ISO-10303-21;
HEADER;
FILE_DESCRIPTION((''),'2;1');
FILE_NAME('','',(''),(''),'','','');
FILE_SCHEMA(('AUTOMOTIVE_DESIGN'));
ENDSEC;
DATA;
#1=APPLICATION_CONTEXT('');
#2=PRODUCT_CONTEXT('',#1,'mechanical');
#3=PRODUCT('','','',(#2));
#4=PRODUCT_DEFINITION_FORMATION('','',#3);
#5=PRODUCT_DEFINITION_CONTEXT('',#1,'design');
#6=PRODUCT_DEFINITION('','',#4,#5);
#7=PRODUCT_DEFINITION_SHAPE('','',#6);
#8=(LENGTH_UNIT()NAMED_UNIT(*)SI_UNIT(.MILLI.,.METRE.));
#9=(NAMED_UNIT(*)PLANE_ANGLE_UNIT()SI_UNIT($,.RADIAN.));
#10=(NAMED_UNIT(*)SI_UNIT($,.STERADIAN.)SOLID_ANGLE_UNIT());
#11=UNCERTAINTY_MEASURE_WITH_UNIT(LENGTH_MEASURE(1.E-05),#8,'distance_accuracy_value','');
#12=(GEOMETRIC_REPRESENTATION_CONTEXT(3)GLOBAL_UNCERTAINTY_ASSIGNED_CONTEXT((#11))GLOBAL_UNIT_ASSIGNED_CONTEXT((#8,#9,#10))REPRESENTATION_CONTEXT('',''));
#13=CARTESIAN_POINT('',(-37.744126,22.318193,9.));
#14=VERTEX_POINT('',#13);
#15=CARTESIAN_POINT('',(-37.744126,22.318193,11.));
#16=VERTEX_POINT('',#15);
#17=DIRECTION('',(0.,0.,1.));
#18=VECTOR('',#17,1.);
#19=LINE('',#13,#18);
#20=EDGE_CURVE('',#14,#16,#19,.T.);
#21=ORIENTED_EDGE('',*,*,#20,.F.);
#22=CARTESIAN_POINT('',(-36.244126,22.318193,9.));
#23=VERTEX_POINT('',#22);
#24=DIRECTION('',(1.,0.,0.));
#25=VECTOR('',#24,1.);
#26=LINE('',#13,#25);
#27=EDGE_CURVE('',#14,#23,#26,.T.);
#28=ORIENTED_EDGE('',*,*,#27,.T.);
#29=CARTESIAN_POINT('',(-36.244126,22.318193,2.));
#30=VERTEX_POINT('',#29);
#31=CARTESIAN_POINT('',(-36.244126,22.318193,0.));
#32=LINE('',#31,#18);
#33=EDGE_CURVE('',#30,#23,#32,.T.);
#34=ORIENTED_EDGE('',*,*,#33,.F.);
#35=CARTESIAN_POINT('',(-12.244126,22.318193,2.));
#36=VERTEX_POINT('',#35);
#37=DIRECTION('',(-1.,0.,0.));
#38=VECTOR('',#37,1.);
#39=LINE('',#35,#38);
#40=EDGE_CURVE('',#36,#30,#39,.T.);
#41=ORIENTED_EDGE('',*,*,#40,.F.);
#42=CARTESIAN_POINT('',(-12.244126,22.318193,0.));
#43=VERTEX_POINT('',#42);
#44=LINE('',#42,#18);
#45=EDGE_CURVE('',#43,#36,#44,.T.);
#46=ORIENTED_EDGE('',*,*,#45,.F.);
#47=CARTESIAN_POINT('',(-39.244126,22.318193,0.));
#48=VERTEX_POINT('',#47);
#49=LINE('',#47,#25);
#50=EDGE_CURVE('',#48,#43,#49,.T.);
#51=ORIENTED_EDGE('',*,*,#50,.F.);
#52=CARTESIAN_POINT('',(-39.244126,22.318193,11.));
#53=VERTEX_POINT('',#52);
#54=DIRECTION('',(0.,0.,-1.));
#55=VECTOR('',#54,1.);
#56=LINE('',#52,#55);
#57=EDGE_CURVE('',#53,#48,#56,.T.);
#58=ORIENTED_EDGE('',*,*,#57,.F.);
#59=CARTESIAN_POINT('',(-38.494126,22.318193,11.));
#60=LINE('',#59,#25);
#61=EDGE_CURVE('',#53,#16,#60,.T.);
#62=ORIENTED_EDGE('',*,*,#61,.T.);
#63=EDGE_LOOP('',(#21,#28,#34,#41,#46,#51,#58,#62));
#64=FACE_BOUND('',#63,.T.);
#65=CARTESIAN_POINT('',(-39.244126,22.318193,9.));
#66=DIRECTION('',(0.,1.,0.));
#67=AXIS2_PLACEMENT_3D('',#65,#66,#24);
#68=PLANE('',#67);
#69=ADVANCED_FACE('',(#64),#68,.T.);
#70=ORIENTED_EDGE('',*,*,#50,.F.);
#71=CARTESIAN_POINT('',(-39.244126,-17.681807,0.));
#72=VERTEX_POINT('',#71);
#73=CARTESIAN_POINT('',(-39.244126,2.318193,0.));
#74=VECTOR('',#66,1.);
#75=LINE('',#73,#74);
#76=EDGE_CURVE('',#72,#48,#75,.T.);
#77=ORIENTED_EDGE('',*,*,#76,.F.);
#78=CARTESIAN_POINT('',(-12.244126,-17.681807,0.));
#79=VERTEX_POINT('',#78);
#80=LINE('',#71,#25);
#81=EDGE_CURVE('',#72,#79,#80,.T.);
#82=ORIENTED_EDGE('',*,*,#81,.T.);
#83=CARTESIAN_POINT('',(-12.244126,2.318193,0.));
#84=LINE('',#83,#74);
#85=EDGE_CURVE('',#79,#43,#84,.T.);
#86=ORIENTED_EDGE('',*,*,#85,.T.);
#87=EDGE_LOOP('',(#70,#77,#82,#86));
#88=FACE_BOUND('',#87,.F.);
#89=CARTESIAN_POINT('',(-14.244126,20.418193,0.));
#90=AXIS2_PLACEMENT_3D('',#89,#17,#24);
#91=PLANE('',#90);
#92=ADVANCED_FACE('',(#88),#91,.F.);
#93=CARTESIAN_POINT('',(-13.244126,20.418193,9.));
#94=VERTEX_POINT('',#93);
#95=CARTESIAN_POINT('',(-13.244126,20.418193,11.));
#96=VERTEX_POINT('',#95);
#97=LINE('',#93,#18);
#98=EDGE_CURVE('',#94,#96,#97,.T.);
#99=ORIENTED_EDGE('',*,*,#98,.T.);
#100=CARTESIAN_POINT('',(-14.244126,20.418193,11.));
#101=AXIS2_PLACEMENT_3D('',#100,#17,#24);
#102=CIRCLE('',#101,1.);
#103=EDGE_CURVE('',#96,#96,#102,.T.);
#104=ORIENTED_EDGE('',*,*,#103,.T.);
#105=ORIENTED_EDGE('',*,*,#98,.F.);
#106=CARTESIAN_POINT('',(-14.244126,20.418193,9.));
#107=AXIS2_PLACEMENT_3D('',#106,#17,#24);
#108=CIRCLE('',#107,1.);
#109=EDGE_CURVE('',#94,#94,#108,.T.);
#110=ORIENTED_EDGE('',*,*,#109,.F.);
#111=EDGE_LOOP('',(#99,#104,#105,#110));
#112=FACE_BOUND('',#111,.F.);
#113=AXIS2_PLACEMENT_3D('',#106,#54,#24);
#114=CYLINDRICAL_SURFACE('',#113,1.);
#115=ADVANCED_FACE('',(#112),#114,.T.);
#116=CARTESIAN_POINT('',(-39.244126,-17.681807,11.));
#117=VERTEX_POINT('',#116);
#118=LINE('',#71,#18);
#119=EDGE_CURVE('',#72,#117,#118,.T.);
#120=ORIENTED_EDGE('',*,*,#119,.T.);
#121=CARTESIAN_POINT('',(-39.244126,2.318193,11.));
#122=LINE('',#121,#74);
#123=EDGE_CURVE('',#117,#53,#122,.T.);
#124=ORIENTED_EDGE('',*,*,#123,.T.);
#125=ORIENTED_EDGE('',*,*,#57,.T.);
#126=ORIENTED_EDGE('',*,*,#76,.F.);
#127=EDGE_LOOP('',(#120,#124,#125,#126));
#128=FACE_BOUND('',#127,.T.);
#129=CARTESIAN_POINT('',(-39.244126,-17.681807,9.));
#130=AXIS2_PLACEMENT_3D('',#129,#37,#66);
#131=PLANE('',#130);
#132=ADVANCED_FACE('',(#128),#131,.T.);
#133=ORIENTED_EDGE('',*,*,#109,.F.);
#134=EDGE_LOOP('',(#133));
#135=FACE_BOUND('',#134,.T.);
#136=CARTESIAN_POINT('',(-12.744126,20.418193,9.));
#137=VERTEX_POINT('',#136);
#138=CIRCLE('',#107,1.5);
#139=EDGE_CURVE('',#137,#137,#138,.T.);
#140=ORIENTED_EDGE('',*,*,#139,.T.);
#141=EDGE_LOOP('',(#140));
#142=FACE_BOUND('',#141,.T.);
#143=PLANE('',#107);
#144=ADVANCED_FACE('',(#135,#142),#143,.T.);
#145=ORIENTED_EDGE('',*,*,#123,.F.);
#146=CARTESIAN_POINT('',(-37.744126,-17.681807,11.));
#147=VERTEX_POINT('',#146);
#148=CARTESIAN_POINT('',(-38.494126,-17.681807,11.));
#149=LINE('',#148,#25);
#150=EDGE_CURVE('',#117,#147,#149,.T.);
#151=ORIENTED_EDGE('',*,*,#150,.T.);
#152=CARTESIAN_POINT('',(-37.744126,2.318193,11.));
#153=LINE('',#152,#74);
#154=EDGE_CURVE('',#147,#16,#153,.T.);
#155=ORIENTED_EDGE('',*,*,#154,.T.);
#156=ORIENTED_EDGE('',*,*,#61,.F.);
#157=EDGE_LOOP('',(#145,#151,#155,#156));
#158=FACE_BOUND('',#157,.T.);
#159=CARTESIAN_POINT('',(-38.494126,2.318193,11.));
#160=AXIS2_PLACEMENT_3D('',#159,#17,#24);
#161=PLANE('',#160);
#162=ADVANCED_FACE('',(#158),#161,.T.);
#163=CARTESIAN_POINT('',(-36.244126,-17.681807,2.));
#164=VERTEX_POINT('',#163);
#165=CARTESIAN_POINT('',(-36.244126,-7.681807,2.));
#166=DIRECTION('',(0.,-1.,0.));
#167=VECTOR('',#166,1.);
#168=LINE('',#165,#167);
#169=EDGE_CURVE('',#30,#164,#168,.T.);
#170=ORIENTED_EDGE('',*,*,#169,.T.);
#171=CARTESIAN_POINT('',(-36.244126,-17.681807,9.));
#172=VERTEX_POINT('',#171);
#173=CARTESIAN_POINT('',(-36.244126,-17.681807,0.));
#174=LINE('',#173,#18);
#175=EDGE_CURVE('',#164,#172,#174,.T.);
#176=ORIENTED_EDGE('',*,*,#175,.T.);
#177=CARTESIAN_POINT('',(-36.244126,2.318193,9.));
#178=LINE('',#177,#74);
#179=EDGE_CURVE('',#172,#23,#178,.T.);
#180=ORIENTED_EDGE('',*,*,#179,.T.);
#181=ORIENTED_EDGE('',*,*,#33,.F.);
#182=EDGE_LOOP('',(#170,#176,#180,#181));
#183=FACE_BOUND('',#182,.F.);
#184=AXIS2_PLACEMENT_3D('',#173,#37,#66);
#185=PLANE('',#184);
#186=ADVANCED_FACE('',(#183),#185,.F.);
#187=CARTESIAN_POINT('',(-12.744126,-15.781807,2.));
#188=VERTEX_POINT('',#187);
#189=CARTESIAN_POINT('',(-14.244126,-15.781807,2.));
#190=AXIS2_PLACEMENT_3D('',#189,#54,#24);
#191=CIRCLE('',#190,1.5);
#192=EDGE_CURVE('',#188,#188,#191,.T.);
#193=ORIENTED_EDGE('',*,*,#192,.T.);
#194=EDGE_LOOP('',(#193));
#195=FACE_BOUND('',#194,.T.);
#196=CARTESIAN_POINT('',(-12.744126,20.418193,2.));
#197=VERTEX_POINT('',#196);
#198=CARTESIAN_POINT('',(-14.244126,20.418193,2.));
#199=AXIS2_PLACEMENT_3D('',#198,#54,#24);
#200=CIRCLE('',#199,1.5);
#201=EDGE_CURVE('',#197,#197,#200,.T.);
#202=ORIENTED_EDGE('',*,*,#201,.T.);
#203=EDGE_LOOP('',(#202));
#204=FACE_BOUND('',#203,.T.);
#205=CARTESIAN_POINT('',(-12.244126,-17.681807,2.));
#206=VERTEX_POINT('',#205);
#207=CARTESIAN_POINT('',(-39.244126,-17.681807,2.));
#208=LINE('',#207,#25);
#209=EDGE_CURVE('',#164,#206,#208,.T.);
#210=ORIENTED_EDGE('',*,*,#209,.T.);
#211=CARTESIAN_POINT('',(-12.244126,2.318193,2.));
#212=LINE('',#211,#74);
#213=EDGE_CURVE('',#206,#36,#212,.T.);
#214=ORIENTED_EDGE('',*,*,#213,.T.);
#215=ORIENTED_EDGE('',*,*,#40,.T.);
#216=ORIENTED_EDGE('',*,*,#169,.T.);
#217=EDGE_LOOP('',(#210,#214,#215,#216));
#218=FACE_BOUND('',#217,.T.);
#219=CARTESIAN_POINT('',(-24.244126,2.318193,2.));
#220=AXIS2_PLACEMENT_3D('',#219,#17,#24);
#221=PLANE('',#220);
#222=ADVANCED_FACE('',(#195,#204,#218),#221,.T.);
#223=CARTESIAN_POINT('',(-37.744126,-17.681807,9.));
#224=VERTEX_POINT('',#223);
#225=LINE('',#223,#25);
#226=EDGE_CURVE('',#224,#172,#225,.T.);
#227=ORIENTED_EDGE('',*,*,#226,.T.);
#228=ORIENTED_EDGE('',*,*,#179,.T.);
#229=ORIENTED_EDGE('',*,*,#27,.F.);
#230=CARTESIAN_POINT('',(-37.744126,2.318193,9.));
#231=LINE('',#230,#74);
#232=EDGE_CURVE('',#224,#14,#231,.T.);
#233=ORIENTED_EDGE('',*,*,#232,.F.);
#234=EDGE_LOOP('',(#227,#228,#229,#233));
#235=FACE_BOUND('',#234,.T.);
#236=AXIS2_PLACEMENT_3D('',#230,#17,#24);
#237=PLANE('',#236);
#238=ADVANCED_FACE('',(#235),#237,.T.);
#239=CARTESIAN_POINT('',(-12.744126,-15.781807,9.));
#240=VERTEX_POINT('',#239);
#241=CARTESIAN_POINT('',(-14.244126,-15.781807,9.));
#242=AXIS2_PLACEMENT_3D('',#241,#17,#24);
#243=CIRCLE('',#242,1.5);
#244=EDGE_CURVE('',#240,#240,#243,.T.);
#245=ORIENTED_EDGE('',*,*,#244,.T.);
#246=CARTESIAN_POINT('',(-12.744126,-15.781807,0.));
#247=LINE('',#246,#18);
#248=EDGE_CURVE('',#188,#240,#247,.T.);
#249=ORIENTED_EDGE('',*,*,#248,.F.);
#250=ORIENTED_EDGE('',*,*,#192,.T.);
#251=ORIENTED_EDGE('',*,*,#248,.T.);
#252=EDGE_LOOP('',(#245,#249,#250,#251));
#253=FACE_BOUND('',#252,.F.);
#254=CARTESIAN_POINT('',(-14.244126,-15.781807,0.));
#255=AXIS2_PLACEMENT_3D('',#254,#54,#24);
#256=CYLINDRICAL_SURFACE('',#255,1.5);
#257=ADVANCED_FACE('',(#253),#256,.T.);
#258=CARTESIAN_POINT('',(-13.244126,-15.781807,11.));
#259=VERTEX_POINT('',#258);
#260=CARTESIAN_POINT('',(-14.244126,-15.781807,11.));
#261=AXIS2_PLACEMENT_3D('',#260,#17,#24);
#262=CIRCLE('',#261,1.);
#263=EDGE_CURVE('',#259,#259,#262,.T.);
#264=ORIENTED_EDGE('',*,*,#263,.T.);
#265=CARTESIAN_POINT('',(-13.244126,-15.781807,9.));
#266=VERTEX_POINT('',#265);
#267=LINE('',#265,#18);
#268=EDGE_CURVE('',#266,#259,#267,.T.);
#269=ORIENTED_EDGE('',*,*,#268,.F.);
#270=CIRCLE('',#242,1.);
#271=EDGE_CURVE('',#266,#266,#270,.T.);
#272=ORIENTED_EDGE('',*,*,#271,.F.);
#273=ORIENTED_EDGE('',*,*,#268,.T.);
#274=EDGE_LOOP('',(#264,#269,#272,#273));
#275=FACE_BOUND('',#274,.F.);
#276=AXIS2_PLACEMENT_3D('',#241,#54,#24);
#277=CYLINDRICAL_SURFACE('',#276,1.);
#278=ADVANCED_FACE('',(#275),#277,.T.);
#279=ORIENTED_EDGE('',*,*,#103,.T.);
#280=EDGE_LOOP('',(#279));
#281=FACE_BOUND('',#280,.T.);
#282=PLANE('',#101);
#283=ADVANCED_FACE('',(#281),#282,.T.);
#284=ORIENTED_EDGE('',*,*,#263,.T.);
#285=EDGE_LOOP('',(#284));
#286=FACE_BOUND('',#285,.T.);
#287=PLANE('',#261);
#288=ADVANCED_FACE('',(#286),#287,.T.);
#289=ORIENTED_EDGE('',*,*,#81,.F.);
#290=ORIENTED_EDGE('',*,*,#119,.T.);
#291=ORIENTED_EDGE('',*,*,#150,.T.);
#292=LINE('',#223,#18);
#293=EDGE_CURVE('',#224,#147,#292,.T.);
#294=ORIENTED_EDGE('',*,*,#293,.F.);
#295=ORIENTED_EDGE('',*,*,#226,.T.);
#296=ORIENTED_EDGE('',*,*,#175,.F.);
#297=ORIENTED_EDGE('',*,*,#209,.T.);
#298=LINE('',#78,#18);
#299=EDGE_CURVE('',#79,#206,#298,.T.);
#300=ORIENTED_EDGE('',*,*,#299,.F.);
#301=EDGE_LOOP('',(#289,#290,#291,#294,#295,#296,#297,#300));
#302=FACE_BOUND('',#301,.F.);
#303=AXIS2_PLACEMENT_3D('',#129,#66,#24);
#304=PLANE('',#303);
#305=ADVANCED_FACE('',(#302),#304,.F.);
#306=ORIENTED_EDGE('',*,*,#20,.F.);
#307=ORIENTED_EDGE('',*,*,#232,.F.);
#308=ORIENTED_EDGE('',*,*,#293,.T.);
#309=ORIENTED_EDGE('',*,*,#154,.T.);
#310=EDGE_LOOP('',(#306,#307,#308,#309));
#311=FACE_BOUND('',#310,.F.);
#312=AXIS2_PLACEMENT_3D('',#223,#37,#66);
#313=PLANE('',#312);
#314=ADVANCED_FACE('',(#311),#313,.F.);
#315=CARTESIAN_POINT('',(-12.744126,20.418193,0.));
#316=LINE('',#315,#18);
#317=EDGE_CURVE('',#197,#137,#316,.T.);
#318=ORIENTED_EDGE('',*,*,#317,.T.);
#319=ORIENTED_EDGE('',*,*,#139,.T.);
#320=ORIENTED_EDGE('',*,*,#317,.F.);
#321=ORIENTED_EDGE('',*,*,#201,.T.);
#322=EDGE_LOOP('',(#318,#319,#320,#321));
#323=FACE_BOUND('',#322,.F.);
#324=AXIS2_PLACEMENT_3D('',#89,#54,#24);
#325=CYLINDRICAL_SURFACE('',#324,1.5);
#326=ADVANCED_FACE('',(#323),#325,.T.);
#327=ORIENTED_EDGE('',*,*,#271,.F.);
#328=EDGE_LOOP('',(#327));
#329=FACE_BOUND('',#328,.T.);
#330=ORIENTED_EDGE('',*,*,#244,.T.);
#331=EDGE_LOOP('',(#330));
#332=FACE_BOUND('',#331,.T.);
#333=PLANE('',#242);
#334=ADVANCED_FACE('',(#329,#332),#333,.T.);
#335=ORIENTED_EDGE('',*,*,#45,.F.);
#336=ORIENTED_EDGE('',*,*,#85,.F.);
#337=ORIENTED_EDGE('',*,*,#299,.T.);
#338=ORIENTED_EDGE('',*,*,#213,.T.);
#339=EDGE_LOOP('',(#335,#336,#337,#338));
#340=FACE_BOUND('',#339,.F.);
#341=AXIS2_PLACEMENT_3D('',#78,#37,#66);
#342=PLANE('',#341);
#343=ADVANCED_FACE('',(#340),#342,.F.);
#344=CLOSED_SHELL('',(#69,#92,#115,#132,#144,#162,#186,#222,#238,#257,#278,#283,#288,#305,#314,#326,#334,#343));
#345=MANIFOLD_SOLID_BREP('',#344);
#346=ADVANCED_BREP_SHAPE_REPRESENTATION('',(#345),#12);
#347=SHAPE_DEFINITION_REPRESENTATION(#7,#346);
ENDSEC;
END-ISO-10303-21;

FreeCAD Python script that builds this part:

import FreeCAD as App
import Part
import Sketcher
from FreeCAD import Vector


def add_polygon(sketch, points):
    """Adds a closed chain of lines whose ends are joined by coincident constraints."""
    first, n = sketch.GeometryCount, len(points)
    for a, b in zip(points, points[1:] + points[:1]):
        sketch.addGeometry(Part.LineSegment(App.Vector(*a, 0), App.Vector(*b, 0)), False)
    for i in range(n):
        sketch.addConstraint(Sketcher.Constraint("Coincident", first + i, 2, first + (i + 1) % n, 1))

doc = App.newDocument("Part")
params = doc.addObject("Spreadsheet::Sheet", "Params")
for row, (alias, value) in enumerate([
    ("sketch1_width", "27 mm"),
    ("sketch1_height", "40 mm"),
    ("pad1_length", "2 mm"),
    ("sketch2_width", "3 mm"),
    ("sketch2_height", "40 mm"),
    ("pad2_length", "9 mm"),
    ("sketch3_diameter", "3 mm"),
    ("pad3_length", "9 mm"),
    ("sketch4_diameter", "2 mm"),
    ("sketch4_height", "40 mm"),
    ("sketch4_width", "1.5 mm"),
    ("pad4_length", "2 mm"),
], start=1):
    params.set(f"A{row}", alias)
    params.set(f"B{row}", "=" + value)
    params.setAlias(f"B{row}", alias)

body = doc.addObject("PartDesign::Body", "Body")

sketch1 = body.newObject("Sketcher::SketchObject", "Sketch")
sketch1.AttachmentSupport = (doc.getObject("XY_Plane"), [""])
sketch1.MapMode = "FlatFace"
add_polygon(sketch1, [(-12, -18), (-12, 22), (-39, 22), (-39, -18)])
sketch1.addConstraint(Sketcher.Constraint("Vertical", 0))
sketch1.addConstraint(Sketcher.Constraint("Horizontal", 1))
sketch1.addConstraint(Sketcher.Constraint("Vertical", 2))
sketch1.addConstraint(Sketcher.Constraint("Horizontal", 3))
sketch1.addConstraint(Sketcher.Constraint("DistanceX", 1, 2, 1, 1, 27.0))
sketch1.addConstraint(Sketcher.Constraint("DistanceY", 0, 1, 0, 2, 40.0))
sketch1.addConstraint(Sketcher.Constraint("DistanceX", 0, 2, -1, 1, 12.244126))
sketch1.addConstraint(Sketcher.Constraint("DistanceY", -1, 1, 0, 2, 22.318193))
sketch1.setExpression("Constraints[8]", "Params.sketch1_width")
sketch1.setExpression("Constraints[9]", "Params.sketch1_height")
pad1 = body.newObject("PartDesign::Pad", "Pad")
pad1.Profile = sketch1
pad1.setExpression("Length", "Params.pad1_length")

sketch2 = body.newObject("Sketcher::SketchObject", "Sketch001")
sketch2.AttachmentSupport = (doc.getObject("XY_Plane"), [""])
sketch2.MapMode = "FlatFace"
add_polygon(sketch2, [(-39.2, 22.3), (-39.2, -17.7), (-36.2, -17.7), (-36.2, 22.3)])
sketch2.addConstraint(Sketcher.Constraint("Vertical", 0))
sketch2.addConstraint(Sketcher.Constraint("Horizontal", 1))
sketch2.addConstraint(Sketcher.Constraint("Vertical", 2))
sketch2.addConstraint(Sketcher.Constraint("Horizontal", 3))
sketch2.addConstraint(Sketcher.Constraint("DistanceX", 1, 1, 1, 2, 3.0))
sketch2.addConstraint(Sketcher.Constraint("DistanceY", 0, 2, 0, 1, 40.0))
sketch2.addConstraint(Sketcher.Constraint("DistanceX", 0, 2, -1, 1, 39.244126))
sketch2.addConstraint(Sketcher.Constraint("DistanceY", 0, 2, -1, 1, 17.681807))
sketch2.setExpression("Constraints[8]", "Params.sketch2_width")
sketch2.setExpression("Constraints[9]", "Params.sketch2_height")
pad2 = body.newObject("PartDesign::Pad", "Pad001")
pad2.Profile = sketch2
pad2.setExpression("Length", "Params.pad2_length")

sketch3 = body.newObject("Sketcher::SketchObject", "Sketch002")
sketch3.AttachmentSupport = (doc.getObject("XY_Plane"), [""])
sketch3.MapMode = "FlatFace"
sketch3.addGeometry(Part.Circle(Vector(-14.2, 20.4, 0), Vector(0, 0, 1), 1.5), False)
sketch3.addGeometry(Part.Circle(Vector(-14.2, -15.8, 0), Vector(0, 0, 1), 1.5), False)
sketch3.addConstraint(Sketcher.Constraint("Equal", 0, 1))
sketch3.addConstraint(Sketcher.Constraint("Vertical", 0, 3, 1, 3))
sketch3.addConstraint(Sketcher.Constraint("Diameter", 0, 3.0))
sketch3.addConstraint(Sketcher.Constraint("DistanceY", 1, 3, 0, 3, 36.2))
sketch3.addConstraint(Sketcher.Constraint("DistanceX", 0, 3, -1, 1, 14.244126))
sketch3.addConstraint(Sketcher.Constraint("DistanceY", -1, 1, 0, 3, 20.418193))
sketch3.setExpression("Constraints[2]", "Params.sketch3_diameter")
pad3 = body.newObject("PartDesign::Pad", "Pad002")
pad3.Profile = sketch3
pad3.setExpression("Length", "Params.pad3_length")

sketch4 = body.newObject("Sketcher::SketchObject", "Sketch003")
sketch4.AttachmentSupport = (doc.getObject("XY_Plane"), [""])
sketch4.MapMode = "FlatFace"
sketch4.AttachmentOffset = App.Placement(Vector(0, 0, 9), App.Rotation())
add_polygon(sketch4, [(-39.2, 22.3), (-39.2, -17.7), (-37.7, -17.7), (-37.7, 22.3)])
sketch4.addGeometry(Part.Circle(Vector(-14.2, 20.4, 0), Vector(0, 0, 1), 1), False)
sketch4.addGeometry(Part.Circle(Vector(-14.2, -15.8, 0), Vector(0, 0, 1), 1), False)
sketch4.addConstraint(Sketcher.Constraint("Vertical", 0))
sketch4.addConstraint(Sketcher.Constraint("Horizontal", 1))
sketch4.addConstraint(Sketcher.Constraint("Vertical", 2))
sketch4.addConstraint(Sketcher.Constraint("Horizontal", 3))
sketch4.addConstraint(Sketcher.Constraint("Equal", 4, 5))
sketch4.addConstraint(Sketcher.Constraint("Vertical", 4, 3, 5, 3))
sketch4.addConstraint(Sketcher.Constraint("Diameter", 4, 2.0))
sketch4.addConstraint(Sketcher.Constraint("DistanceY", 0, 2, 0, 1, 40.0))
sketch4.addConstraint(Sketcher.Constraint("DistanceX", 1, 1, 1, 2, 1.5))
sketch4.addConstraint(Sketcher.Constraint("DistanceX", 0, 2, 5, 3, 25.0))
sketch4.addConstraint(Sketcher.Constraint("DistanceY", 5, 3, 4, 3, 36.2))
sketch4.addConstraint(Sketcher.Constraint("DistanceY", 0, 2, 5, 3, 1.9))
sketch4.addConstraint(Sketcher.Constraint("DistanceX", 4, 3, -1, 1, 14.244126))
sketch4.addConstraint(Sketcher.Constraint("DistanceY", -1, 1, 4, 3, 20.418193))
sketch4.setExpression("Constraints[10]", "Params.sketch4_diameter")
sketch4.setExpression("Constraints[11]", "Params.sketch4_height")
sketch4.setExpression("Constraints[12]", "Params.sketch4_width")
pad4 = body.newObject("PartDesign::Pad", "Pad003")
pad4.Profile = sketch4
pad4.setExpression("Length", "Params.pad4_length")

doc.recompute()
